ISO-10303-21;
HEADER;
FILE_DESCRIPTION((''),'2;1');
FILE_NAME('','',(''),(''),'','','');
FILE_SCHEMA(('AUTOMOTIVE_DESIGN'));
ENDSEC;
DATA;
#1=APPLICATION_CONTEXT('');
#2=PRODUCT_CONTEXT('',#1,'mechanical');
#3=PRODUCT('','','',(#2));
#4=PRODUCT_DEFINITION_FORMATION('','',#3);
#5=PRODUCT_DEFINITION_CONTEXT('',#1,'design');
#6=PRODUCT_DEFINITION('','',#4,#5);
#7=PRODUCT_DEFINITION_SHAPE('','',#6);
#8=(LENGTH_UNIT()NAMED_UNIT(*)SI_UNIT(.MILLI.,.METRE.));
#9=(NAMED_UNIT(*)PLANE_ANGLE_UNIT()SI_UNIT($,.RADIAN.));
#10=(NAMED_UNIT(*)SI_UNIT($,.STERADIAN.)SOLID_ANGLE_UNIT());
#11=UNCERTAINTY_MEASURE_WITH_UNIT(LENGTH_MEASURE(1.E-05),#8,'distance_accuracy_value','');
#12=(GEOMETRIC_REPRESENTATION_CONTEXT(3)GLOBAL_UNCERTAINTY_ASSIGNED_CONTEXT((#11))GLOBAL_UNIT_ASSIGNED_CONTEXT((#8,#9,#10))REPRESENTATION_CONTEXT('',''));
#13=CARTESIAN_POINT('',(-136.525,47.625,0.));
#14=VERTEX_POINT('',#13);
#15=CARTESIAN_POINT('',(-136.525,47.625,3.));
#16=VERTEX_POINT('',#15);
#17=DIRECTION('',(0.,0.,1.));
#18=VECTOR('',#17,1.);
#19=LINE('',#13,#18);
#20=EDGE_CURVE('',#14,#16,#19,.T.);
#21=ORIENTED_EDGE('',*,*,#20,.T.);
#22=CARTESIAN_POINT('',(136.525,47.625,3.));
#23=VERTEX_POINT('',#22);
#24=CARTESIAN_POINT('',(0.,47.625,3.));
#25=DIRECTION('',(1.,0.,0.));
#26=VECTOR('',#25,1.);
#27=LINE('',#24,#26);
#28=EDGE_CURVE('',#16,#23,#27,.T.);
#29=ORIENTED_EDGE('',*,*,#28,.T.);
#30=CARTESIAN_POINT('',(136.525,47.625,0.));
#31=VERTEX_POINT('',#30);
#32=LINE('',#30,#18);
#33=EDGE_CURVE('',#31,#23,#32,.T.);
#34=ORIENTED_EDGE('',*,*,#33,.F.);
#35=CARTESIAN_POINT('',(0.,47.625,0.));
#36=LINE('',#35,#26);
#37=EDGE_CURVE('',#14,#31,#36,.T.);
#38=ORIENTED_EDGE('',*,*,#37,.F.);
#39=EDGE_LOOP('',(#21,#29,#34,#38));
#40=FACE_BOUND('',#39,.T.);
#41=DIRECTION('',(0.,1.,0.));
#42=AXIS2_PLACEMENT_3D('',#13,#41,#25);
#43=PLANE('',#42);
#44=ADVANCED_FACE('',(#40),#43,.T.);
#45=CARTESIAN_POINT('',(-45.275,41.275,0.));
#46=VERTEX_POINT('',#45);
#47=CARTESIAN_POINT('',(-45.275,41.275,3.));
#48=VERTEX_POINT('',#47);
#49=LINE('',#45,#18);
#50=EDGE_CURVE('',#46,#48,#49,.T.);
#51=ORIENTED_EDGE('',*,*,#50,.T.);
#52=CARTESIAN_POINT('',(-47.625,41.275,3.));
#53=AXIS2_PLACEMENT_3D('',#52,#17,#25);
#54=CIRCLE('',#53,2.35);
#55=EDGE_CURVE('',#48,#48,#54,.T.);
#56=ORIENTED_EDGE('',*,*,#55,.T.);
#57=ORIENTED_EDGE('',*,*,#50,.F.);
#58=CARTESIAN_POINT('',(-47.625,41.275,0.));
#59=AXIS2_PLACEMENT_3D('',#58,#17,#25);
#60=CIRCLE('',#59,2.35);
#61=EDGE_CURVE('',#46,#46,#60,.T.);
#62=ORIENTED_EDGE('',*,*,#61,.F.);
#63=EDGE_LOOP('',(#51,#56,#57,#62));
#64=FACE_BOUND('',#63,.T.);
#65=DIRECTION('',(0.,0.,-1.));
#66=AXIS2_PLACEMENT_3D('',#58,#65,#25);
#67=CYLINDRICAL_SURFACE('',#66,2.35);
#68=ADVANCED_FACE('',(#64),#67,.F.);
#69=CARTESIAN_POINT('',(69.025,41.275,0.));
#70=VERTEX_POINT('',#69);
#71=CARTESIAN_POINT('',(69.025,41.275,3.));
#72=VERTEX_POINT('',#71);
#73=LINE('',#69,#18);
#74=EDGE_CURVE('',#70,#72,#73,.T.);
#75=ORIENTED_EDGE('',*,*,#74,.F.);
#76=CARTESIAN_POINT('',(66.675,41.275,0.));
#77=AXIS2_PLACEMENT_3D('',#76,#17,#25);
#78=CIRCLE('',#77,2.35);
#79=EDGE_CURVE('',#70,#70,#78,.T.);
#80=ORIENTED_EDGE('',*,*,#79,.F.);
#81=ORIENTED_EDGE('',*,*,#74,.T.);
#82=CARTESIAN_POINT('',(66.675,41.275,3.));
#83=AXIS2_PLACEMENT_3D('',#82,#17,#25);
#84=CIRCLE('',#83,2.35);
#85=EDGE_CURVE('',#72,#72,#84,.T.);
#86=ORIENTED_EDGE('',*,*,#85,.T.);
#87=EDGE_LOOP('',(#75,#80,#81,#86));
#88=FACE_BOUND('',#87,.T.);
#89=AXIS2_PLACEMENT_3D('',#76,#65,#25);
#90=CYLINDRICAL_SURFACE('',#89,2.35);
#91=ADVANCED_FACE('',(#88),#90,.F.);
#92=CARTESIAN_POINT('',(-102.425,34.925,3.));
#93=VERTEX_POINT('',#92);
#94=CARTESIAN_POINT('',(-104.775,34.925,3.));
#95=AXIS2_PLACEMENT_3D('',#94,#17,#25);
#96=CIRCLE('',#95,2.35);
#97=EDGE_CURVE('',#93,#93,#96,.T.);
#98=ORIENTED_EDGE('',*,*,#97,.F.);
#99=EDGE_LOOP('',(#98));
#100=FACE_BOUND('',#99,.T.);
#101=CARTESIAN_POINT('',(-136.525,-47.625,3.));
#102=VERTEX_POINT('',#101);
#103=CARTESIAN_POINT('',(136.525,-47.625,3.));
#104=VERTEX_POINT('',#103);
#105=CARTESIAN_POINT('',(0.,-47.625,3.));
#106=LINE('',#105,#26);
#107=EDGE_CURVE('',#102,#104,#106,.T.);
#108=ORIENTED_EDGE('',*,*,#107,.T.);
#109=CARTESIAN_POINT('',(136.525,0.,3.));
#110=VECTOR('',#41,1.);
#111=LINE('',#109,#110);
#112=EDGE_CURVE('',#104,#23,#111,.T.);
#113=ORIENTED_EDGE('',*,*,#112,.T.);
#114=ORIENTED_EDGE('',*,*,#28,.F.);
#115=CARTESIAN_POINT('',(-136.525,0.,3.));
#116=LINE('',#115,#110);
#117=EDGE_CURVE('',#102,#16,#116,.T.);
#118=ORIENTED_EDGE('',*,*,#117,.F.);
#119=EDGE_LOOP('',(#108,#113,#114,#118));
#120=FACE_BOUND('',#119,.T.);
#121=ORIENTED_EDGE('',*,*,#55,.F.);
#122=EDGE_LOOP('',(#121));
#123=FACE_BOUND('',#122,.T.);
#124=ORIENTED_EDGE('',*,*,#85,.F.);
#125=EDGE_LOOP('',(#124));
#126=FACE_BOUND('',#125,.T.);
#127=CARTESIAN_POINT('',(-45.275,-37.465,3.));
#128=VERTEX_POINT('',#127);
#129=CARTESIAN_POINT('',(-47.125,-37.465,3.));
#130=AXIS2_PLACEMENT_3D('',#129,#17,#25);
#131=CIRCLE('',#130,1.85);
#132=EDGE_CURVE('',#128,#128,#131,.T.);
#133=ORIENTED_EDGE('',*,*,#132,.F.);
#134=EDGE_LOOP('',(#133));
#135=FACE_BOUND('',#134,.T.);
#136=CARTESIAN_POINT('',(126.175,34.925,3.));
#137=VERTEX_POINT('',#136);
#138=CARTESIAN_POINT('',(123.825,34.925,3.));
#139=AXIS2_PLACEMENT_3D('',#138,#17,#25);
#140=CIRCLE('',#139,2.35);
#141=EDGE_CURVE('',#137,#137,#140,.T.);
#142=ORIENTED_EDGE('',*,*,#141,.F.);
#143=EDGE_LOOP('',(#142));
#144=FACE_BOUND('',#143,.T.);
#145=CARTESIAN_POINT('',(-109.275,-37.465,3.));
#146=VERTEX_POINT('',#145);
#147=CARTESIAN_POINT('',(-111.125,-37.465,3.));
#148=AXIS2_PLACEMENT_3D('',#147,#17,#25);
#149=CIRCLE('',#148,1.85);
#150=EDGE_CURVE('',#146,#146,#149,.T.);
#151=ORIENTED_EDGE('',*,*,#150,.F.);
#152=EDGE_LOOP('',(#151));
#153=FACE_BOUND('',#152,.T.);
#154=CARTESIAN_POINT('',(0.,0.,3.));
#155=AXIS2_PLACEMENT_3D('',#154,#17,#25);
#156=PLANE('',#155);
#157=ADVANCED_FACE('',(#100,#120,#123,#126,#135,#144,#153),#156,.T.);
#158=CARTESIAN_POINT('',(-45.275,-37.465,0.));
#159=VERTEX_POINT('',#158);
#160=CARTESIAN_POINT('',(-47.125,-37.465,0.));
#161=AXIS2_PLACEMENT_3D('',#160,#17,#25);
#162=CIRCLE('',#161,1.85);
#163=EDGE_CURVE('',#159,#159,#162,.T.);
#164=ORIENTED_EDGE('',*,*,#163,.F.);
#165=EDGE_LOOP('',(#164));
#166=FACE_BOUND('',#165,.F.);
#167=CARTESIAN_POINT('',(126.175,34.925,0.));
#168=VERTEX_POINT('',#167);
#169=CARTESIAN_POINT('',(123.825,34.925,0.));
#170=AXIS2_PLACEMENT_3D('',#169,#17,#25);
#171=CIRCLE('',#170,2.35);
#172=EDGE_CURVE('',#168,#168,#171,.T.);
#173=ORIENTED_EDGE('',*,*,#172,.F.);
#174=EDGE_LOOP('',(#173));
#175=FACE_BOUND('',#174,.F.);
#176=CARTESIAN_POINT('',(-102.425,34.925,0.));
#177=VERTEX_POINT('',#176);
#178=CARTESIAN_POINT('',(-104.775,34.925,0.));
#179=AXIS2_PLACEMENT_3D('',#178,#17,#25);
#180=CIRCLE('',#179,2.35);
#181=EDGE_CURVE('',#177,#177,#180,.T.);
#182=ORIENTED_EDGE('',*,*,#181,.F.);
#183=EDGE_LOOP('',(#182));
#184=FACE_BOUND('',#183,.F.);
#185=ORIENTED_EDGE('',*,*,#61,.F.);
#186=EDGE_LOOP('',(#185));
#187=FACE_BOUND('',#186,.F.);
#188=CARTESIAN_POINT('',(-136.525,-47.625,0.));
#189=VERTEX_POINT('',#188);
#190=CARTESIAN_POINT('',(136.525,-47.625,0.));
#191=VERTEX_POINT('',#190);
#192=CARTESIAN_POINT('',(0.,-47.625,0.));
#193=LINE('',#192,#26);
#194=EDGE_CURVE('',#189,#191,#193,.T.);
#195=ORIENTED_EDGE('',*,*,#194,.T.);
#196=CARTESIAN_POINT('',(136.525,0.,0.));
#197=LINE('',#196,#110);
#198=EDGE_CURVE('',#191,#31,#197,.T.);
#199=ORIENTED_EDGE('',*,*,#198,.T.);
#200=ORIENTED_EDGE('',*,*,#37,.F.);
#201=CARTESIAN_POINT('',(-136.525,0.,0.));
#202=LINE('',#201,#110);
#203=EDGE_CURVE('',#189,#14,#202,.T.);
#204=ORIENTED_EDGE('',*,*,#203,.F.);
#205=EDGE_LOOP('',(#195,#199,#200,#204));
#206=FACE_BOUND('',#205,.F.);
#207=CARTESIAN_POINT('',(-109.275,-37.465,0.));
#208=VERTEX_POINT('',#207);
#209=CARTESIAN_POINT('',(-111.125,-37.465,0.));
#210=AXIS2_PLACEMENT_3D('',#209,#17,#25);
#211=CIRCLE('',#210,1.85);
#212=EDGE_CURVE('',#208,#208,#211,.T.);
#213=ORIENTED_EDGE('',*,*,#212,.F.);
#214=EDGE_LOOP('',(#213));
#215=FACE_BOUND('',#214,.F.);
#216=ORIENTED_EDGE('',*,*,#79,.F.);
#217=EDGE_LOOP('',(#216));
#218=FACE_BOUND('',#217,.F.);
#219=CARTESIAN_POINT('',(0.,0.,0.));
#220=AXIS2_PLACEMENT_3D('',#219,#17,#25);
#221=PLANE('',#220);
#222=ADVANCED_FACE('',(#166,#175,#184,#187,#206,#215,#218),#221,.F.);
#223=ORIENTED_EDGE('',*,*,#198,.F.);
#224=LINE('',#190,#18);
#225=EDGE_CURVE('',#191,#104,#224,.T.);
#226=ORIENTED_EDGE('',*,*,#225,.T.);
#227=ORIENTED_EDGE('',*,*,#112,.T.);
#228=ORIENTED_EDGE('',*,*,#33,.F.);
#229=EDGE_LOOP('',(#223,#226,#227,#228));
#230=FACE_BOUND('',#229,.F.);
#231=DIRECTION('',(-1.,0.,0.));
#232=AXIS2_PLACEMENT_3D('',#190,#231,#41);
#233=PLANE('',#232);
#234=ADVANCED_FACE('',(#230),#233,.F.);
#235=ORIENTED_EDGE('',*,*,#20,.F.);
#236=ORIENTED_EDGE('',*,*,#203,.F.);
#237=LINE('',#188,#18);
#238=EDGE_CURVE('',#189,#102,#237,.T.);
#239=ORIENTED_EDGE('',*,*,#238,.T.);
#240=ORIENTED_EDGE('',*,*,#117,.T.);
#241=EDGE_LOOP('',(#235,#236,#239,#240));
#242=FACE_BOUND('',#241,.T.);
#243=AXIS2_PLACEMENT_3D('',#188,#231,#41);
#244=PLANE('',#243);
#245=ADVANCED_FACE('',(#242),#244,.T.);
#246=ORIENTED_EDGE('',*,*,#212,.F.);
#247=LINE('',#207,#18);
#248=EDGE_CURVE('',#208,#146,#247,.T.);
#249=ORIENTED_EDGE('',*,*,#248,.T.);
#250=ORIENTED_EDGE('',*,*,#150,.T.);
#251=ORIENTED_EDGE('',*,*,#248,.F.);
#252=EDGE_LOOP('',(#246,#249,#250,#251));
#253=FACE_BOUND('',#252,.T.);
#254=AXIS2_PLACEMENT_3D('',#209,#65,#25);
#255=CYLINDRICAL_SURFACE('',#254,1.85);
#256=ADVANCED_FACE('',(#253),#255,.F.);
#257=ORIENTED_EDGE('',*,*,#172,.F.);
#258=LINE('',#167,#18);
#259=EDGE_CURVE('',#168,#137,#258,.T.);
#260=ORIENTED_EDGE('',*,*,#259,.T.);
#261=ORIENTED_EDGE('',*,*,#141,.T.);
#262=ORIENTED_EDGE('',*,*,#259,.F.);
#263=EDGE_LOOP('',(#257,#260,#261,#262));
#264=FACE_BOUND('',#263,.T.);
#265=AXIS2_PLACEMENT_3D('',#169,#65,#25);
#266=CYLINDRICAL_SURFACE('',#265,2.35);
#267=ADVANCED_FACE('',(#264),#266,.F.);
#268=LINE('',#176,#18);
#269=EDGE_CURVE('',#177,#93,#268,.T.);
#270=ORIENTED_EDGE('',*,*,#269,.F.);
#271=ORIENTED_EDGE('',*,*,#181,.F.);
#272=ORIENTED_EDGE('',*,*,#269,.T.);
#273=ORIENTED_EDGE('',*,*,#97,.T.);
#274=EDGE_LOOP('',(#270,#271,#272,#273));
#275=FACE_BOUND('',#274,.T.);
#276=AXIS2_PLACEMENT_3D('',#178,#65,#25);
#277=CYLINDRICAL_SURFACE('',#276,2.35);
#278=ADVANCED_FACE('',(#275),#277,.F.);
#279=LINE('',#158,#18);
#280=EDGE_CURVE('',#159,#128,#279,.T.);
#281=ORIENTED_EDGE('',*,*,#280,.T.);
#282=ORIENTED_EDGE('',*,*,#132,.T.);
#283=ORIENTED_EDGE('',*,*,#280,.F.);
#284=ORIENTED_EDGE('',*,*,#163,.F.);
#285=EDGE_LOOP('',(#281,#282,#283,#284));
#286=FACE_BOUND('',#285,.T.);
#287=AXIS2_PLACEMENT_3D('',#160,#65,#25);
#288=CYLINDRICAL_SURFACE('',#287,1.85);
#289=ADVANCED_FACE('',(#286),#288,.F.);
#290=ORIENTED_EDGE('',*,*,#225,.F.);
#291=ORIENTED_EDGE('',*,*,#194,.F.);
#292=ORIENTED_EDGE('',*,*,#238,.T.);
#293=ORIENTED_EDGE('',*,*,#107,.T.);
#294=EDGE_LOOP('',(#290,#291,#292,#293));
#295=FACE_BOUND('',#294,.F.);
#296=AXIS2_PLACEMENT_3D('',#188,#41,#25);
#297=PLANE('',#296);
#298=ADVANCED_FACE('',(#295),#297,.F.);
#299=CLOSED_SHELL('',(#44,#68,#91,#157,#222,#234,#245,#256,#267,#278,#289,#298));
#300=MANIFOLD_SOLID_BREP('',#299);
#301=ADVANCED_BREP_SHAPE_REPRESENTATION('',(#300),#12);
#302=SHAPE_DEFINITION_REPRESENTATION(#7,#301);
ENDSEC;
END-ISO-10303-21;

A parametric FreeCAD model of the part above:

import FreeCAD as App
import Part
import Sketcher
from FreeCAD import Vector
Q = App.Units.Quantity

doc = App.newDocument("Part")
params = doc.addObject("Spreadsheet::Sheet", "Params")
for row, (alias, value) in enumerate([
    ("sketch1_diameter", "3.7 mm"),
    ("sketch1_diameter2", "4.7 mm"),
    ("sketch1_width", "273.05 mm"),
    ("sketch1_height", "95.25 mm"),
    ("pad1_length", "3 mm"),
], start=1):
    params.set(f"A{row}", alias)
    params.set(f"B{row}", "=" + value)
    params.setAlias(f"B{row}", alias)

body = doc.addObject("PartDesign::Body", "Body")

# Sketch on XY plane
sketch1 = doc.addObject("Sketcher::SketchObject", "Sketch")
body.addObject(sketch1)
sketch1.AttachmentSupport = (doc.XY_Plane, [""])
sketch1.MapMode = "FlatFace"
sketch1.addGeometry(Part.LineSegment(Vector(-136.5, 47.6, 0), Vector(-136.5, -47.6, 0)), False)
sketch1.addGeometry(Part.LineSegment(Vector(-136.5, -47.6, 0), Vector(136.5, -47.6, 0)), False)
sketch1.addGeometry(Part.LineSegment(Vector(136.5, -47.6, 0), Vector(136.5, 47.6, 0)), False)
sketch1.addGeometry(Part.LineSegment(Vector(136.5, 47.6, 0), Vector(-136.5, 47.6, 0)), False)
sketch1.addGeometry(Part.Circle(Vector(-111.1, -37.5, 0), Vector(0, 0, 1), 1.9), False)
sketch1.addGeometry(Part.Circle(Vector(-47.1, -37.5, 0), Vector(0, 0, 1), 1.9), False)
sketch1.addGeometry(Part.Circle(Vector(-104.8, 34.9, 0), Vector(0, 0, 1), 2.4), False)
sketch1.addGeometry(Part.Circle(Vector(-47.6, 41.3, 0), Vector(0, 0, 1), 2.4), False)
sketch1.addGeometry(Part.Circle(Vector(66.7, 41.3, 0), Vector(0, 0, 1), 2.4), False)
sketch1.addGeometry(Part.Circle(Vector(123.8, 34.9, 0), Vector(0, 0, 1), 2.4), False)
sketch1.addConstraint(Sketcher.Constraint("Coincident", 0, 2, 1, 1))
sketch1.addConstraint(Sketcher.Constraint("Coincident", 1, 2, 2, 1))
sketch1.addConstraint(Sketcher.Constraint("Coincident", 2, 2, 3, 1))
sketch1.addConstraint(Sketcher.Constraint("Coincident", 3, 2, 0, 1))
sketch1.addConstraint(Sketcher.Constraint("Vertical", 0))
sketch1.addConstraint(Sketcher.Constraint("Horizontal", 1))
sketch1.addConstraint(Sketcher.Constraint("Vertical", 2))
sketch1.addConstraint(Sketcher.Constraint("Horizontal", 3))
sketch1.addConstraint(Sketcher.Constraint("Equal", 4, 5))
sketch1.addConstraint(Sketcher.Constraint("Equal", 6, 7))
sketch1.addConstraint(Sketcher.Constraint("Equal", 7, 8))
sketch1.addConstraint(Sketcher.Constraint("Equal", 8, 9))
sketch1.addConstraint(Sketcher.Constraint("Symmetric", 0, 2, 2, 2, -1, 1))
sketch1.addConstraint(Sketcher.Constraint("Horizontal", 4, 3, 5, 3))
sketch1.addConstraint(Sketcher.Constraint("Horizontal", 7, 3, 8, 3))
sketch1.addConstraint(Sketcher.Constraint("Horizontal", 6, 3, 9, 3))
sketch1.addConstraint(Sketcher.Constraint("Diameter", 4, Q("3.7 mm")))
sketch1.addConstraint(Sketcher.Constraint("Diameter", 6, Q("4.7 mm")))
sketch1.addConstraint(Sketcher.Constraint("DistanceX", 4, 3, 5, 3, Q("64 mm")))
sketch1.addConstraint(Sketcher.Constraint("DistanceX", 1, 1, 1, 2, Q("273.05 mm")))
sketch1.addConstraint(Sketcher.Constraint("DistanceY", 0, 2, 0, 1, Q("95.25 mm")))
sketch1.addConstraint(Sketcher.Constraint("DistanceX", 7, 3, 5, 3, Q("0.5 mm")))
sketch1.addConstraint(Sketcher.Constraint("DistanceX", 7, 3, 8, 3, Q("114.3 mm")))
sketch1.addConstraint(Sketcher.Constraint("DistanceX", 6, 3, 9, 3, Q("228.6 mm")))
sketch1.addConstraint(Sketcher.Constraint("DistanceX", 0, 2, 4, 3, Q("25.4 mm")))
sketch1.addConstraint(Sketcher.Constraint("DistanceY", 0, 2, 7, 3, Q("88.9 mm")))
sketch1.addConstraint(Sketcher.Constraint("DistanceX", 9, 3, 1, 2, Q("12.7 mm")))
sketch1.addConstraint(Sketcher.Constraint("DistanceY", 9, 3, 2, 2, Q("12.7 mm")))
sketch1.addConstraint(Sketcher.Constraint("DistanceY", 4, 3, 6, 3, Q("72.39 mm")))
sketch1.setExpression("Constraints[16]", "Params.sketch1_diameter")
sketch1.setExpression("Constraints[17]", "Params.sketch1_diameter2")
sketch1.setExpression("Constraints[19]", "Params.sketch1_width")
sketch1.setExpression("Constraints[20]", "Params.sketch1_height")
pad1 = doc.addObject("PartDesign::Pad", "Pad")
body.addObject(pad1)
pad1.Profile = sketch1
pad1.setExpression("Length", "Params.pad1_length")

doc.recompute()
